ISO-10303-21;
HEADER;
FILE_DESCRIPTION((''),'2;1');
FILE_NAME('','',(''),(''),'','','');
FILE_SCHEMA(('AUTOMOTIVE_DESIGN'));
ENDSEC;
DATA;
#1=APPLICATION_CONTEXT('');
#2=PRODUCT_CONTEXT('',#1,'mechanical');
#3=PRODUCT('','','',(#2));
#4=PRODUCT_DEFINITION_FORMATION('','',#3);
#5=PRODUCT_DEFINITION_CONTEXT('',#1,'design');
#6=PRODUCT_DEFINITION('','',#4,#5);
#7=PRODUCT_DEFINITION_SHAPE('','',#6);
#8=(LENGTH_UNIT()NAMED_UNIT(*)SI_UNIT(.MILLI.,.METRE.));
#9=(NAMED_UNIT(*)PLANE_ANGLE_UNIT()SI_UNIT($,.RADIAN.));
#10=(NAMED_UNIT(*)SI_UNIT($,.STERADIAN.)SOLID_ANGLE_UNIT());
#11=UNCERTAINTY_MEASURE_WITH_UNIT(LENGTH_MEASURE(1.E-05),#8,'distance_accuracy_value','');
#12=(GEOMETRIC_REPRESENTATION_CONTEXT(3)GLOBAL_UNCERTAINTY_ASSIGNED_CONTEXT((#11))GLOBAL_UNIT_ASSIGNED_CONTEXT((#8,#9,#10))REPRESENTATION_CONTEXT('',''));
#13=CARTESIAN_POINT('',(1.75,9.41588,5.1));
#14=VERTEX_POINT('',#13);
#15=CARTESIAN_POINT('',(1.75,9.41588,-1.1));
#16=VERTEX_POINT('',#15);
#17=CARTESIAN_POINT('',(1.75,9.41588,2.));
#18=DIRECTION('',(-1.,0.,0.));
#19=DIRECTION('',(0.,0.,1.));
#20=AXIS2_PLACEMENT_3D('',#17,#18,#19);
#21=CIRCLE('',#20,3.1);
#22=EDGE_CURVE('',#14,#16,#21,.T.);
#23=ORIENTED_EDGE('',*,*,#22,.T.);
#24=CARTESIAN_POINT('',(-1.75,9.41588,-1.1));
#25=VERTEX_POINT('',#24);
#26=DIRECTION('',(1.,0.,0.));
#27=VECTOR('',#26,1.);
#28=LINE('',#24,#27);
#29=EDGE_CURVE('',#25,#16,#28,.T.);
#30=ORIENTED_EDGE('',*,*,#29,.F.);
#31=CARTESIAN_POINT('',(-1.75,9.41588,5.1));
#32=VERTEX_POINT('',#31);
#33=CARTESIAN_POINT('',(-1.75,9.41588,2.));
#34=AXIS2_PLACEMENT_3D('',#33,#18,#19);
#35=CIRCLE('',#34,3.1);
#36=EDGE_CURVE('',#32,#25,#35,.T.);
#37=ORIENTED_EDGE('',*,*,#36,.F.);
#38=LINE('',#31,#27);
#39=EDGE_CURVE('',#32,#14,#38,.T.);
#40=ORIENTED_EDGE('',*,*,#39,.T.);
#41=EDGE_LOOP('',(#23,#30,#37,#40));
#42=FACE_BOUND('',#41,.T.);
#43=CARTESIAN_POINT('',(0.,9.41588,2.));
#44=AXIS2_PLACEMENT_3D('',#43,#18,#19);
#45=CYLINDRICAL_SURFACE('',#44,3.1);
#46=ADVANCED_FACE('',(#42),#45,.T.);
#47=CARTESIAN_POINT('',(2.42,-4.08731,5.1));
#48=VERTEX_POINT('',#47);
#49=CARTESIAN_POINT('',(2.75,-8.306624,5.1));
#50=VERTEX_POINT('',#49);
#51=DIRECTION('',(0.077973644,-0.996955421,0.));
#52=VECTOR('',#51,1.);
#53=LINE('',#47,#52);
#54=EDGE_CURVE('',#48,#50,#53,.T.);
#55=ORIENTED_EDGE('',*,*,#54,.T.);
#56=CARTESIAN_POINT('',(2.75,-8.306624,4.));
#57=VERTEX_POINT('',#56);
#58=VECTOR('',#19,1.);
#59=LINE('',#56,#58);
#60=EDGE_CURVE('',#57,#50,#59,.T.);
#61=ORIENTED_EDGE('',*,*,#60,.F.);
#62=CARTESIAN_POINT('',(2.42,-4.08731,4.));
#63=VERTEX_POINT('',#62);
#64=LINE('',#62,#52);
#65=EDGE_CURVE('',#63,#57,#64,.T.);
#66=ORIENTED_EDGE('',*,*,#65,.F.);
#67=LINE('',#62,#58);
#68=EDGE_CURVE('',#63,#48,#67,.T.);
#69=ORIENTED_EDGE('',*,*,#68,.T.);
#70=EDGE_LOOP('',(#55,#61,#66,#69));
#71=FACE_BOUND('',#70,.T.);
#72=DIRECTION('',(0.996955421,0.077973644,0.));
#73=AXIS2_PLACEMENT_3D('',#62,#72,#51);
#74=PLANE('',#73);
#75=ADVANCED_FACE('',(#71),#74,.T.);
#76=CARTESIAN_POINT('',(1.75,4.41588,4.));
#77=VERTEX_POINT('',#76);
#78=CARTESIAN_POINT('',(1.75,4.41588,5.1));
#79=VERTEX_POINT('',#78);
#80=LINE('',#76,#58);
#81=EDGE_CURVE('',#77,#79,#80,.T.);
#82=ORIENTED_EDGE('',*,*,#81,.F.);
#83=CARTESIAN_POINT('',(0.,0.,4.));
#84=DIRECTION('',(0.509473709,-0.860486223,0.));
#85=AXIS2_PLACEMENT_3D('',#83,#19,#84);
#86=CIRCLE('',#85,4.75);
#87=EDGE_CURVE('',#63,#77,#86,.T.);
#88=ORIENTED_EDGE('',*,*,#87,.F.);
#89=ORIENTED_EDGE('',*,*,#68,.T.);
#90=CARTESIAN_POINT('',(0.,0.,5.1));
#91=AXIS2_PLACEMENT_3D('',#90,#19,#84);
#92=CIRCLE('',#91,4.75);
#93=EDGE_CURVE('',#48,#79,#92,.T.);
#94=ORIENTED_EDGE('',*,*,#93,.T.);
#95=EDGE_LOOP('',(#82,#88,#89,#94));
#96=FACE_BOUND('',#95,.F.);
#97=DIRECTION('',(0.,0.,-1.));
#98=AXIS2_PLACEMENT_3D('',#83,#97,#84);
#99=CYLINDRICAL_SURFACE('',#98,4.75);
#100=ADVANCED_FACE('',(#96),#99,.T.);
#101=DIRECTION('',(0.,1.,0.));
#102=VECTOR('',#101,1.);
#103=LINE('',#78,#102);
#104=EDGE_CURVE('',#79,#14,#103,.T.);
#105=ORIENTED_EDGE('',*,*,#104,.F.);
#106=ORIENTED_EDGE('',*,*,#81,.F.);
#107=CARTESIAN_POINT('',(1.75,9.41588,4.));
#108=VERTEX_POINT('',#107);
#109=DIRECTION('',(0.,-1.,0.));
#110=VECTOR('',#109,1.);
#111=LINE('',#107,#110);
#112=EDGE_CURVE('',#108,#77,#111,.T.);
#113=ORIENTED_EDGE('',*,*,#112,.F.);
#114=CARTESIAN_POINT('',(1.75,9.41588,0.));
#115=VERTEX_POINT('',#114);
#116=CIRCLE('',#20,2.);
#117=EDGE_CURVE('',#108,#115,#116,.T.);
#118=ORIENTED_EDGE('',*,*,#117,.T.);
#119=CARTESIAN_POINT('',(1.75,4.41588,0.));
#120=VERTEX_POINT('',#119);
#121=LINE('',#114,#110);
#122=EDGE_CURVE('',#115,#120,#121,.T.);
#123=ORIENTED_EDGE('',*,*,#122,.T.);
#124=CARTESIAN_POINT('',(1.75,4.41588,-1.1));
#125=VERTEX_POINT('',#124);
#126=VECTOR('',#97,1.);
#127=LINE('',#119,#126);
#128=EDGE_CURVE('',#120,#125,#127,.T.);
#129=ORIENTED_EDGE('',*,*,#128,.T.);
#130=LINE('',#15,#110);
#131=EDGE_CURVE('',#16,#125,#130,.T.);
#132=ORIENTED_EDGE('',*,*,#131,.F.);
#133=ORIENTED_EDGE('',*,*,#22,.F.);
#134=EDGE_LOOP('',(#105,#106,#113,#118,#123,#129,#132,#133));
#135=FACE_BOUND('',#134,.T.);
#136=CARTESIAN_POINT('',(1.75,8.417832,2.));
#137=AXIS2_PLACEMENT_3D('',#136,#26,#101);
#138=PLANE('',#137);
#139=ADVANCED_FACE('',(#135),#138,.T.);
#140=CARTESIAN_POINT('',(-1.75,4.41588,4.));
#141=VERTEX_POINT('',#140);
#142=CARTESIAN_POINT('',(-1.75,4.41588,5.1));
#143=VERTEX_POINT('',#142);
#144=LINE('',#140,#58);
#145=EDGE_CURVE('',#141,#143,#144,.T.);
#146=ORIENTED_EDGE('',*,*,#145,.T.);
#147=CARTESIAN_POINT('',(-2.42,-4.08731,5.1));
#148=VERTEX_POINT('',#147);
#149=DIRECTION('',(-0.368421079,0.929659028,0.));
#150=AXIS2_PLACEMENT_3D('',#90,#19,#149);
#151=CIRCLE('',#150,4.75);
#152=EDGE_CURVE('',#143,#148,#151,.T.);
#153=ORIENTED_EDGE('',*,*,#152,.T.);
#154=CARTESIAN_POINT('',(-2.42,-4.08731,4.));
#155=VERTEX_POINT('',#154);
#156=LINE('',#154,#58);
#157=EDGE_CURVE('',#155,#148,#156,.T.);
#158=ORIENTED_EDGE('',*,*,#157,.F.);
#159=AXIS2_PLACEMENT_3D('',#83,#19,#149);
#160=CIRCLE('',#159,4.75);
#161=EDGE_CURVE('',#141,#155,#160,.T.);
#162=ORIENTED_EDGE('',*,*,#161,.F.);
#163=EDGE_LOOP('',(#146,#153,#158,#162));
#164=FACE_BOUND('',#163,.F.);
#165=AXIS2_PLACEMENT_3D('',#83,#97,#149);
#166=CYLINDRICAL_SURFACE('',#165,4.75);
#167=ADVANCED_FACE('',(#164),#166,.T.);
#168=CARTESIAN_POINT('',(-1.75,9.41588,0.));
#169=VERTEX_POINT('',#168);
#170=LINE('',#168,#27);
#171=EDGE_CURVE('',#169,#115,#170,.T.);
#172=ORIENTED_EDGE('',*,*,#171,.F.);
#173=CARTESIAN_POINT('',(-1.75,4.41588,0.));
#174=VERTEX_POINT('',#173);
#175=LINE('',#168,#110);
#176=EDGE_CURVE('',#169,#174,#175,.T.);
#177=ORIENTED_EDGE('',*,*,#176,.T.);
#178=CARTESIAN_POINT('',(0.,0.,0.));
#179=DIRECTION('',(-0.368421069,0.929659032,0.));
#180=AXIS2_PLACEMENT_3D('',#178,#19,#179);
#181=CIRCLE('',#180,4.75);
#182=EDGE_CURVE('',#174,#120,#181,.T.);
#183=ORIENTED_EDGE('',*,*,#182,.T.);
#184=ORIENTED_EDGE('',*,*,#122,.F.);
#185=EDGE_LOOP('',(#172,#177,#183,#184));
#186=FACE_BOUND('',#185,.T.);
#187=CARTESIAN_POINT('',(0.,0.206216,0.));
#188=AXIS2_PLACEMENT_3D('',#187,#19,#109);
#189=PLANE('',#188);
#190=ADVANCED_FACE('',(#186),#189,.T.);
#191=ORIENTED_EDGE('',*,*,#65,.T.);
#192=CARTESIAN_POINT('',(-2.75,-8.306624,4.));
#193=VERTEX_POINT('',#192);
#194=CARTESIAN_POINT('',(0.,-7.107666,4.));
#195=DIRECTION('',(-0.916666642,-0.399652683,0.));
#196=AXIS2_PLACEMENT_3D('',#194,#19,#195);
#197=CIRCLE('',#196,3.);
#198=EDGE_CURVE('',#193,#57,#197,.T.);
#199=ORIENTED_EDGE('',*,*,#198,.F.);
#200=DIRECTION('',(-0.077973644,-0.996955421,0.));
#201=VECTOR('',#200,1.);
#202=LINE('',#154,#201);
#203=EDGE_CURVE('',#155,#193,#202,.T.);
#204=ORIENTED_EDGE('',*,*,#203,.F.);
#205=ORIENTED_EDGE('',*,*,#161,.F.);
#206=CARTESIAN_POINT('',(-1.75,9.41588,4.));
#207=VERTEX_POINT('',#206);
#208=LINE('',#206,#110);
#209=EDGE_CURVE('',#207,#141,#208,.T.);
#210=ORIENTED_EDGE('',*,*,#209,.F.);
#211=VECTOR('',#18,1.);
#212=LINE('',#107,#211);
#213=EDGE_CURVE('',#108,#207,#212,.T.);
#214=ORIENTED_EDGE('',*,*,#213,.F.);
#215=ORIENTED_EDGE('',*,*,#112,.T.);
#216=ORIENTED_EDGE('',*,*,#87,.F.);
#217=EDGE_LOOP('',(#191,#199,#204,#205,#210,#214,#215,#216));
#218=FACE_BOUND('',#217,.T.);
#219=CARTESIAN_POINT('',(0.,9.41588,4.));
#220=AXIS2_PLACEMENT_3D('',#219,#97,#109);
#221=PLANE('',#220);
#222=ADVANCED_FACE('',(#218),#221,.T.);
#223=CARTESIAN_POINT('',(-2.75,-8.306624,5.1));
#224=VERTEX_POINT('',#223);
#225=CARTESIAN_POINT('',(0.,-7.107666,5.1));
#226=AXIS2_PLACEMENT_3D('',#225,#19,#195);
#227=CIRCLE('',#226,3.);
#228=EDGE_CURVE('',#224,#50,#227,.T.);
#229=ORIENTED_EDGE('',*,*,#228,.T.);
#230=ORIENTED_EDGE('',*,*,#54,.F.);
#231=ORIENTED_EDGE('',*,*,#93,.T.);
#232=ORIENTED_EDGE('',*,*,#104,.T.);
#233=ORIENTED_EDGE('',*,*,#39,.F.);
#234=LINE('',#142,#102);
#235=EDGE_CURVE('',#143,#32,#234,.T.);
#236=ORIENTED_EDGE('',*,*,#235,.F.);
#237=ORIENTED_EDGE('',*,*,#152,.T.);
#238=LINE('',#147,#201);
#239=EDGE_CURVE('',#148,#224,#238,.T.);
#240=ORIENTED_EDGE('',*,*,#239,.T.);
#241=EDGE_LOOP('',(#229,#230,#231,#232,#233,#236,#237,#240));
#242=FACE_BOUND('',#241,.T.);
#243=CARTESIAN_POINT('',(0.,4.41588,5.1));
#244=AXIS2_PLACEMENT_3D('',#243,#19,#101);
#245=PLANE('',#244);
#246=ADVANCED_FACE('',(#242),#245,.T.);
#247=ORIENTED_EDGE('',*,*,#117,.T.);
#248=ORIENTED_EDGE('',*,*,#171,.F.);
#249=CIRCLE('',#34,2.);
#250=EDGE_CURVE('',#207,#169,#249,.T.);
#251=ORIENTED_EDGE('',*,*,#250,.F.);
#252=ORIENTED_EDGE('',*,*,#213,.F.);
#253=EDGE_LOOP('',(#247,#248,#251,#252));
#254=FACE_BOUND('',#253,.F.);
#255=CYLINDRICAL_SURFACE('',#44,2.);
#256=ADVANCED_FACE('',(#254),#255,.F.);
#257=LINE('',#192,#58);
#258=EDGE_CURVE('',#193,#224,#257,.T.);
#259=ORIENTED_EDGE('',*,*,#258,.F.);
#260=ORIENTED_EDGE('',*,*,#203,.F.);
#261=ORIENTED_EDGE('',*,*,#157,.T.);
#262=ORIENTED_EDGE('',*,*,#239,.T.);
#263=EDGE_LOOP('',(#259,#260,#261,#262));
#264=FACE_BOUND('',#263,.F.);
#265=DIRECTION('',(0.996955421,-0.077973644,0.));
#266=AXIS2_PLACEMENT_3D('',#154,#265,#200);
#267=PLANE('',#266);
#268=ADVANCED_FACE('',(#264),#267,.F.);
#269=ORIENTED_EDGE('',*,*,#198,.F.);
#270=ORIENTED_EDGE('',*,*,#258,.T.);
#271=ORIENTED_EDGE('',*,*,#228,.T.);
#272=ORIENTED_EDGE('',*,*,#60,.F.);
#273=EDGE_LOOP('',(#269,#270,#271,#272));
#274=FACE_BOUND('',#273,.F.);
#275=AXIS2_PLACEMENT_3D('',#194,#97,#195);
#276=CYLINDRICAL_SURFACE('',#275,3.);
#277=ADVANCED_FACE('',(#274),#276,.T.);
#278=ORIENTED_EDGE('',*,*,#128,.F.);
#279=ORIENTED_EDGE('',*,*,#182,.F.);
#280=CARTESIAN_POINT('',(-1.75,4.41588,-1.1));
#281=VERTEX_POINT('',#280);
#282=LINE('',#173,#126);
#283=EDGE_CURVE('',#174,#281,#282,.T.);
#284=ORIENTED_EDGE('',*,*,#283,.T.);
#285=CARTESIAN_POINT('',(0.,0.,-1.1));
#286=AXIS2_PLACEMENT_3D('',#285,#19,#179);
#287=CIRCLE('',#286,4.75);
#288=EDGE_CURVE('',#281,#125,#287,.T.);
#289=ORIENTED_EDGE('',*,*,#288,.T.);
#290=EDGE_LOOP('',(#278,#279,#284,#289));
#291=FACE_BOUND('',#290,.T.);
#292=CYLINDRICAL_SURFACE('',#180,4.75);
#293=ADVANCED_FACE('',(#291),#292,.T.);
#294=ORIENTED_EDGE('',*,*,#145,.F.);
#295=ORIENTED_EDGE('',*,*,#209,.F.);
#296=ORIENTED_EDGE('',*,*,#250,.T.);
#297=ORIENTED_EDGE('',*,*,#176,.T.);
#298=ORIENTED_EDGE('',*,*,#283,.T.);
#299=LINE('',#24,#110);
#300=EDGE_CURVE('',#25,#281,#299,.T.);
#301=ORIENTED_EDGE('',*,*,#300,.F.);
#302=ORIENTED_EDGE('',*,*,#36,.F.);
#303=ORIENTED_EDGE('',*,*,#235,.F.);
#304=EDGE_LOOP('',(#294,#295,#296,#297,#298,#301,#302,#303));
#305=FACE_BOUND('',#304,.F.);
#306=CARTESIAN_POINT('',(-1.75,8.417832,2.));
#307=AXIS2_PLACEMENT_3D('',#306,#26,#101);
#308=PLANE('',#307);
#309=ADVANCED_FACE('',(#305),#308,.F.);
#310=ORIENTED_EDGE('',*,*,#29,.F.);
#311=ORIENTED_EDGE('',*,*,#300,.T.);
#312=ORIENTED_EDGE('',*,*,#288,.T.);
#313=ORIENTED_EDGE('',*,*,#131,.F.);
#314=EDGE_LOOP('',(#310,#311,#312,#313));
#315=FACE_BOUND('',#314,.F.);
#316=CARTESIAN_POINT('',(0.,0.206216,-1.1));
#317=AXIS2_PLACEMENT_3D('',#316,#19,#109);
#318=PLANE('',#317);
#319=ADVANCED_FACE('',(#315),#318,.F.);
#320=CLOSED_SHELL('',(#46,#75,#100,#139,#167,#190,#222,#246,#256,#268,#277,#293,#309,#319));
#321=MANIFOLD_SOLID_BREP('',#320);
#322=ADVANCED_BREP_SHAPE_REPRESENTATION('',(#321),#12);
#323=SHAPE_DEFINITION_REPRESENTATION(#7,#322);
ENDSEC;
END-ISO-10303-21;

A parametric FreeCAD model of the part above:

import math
import FreeCAD as App
import Part
import Sketcher

V = App.Vector
Q = App.Units.Quantity

doc = App.newDocument("Part")
body = doc.addObject("PartDesign::Body", "Body")

# Sketch on XY plane
sketch1 = doc.addObject("Sketcher::SketchObject", "Sketch")
body.addObject(sketch1)
sketch1.AttachmentSupport = (doc.XY_Plane, [""])
sketch1.MapMode = "FlatFace"
sketch1.addGeometry([
    Part.ArcOfCircle(Part.Circle(V(0, 0, 0), V(0, 0, 1), 4.8), math.radians(-158), math.radians(-31)),  # 0
    Part.LineSegment(V(4.1, -2.4, 0), V(8.3, -2.8, 0)),  # 1
    Part.ArcOfCircle(Part.Circle(V(7.1, 0, 0), V(0, 0, 1), 3), math.radians(-66), math.radians(66)),  # 2
    Part.LineSegment(V(8.3, 2.8, 0), V(4.1, 2.4, 0)),  # 3
    Part.ArcOfCircle(Part.Circle(V(0, 0, 0), V(0, 0, 1), 4.8), math.radians(31), math.radians(158)),  # 4
    Part.LineSegment(V(-4.4, 1.8, 0), V(-4.4, -1.8, 0)),  # 5
], False)
sketch1.addConstraint([
    Sketcher.Constraint("Coincident", 0, 2, 1, 1),
    Sketcher.Constraint("Coincident", 1, 2, 2, 1),
    Sketcher.Constraint("Coincident", 2, 2, 3, 1),
    Sketcher.Constraint("Coincident", 3, 2, 4, 1),
    Sketcher.Constraint("Coincident", 4, 2, 5, 1),
    Sketcher.Constraint("Coincident", 5, 2, 0, 1),
    Sketcher.Constraint("Vertical", 5),
    Sketcher.Constraint("Coincident", 0, 3, -1, 1),
    Sketcher.Constraint("Coincident", 4, 3, -1, 1),
    Sketcher.Constraint("Equal", 0, 4),
    Sketcher.Constraint("Symmetric", 1, 2, 2, 2, -1),
    Sketcher.Constraint("Vertical", 0, 2, 3, 2),
    Sketcher.Constraint("Radius", 2, Q("3 mm")),
    Sketcher.Constraint("Radius", 0, Q("4.75 mm")),
    Sketcher.Constraint("DistanceY", 5, 2, 5, 1, Q("3.5 mm")),
    Sketcher.Constraint("DistanceY", 1, 2, 2, 2, Q("5.5 mm")),
    Sketcher.Constraint("DistanceY", 0, 2, -1, 1, Q("2.42 mm")),
    Sketcher.Constraint("Distance", 1, Q("4.232199 mm")),
])
pad1 = doc.addObject("PartDesign::Pad", "Pad")
body.addObject(pad1)
pad1.Profile = sketch1
pad1.Length = 1.1

# Sketch on XZ plane
sketch2 = doc.addObject("Sketcher::SketchObject", "Sketch001")
body.addObject(sketch2)
sketch2.AttachmentSupport = (doc.XZ_Plane, [""])
sketch2.MapMode = "FlatFace"
sketch2.addGeometry([
    Part.ArcOfCircle(Part.Circle(V(-9.4, -2, 0), V(0, 0, 1), 2), math.radians(90), math.radians(270)),  # 0
    Part.LineSegment(V(-9.4, 0, 0), V(-4.4, 0, 0)),  # 1
    Part.LineSegment(V(-4.4, 0, 0), V(-4.4, 1.1, 0)),  # 2
    Part.LineSegment(V(-4.4, 1.1, 0), V(-9.4, 1.1, 0)),  # 3
    Part.ArcOfCircle(Part.Circle(V(-9.4, -2, 0), V(0, 0, 1), 3.1), math.radians(90), math.radians(270)),  # 4
    Part.LineSegment(V(-9.4, -5.1, 0), V(-4.4, -5.1, 0)),  # 5
    Part.LineSegment(V(-4.4, -5.1, 0), V(-4.4, -4, 0)),  # 6
    Part.LineSegment(V(-4.4, -4, 0), V(-9.4, -4, 0)),  # 7
], False)
sketch2.addConstraint([
    Sketcher.Constraint("Tangent", 0, 1, 1, 1),
    Sketcher.Constraint("Coincident", 1, 2, 2, 1),
    Sketcher.Constraint("Coincident", 2, 2, 3, 1),
    Sketcher.Constraint("Tangent", 3, 2, 4, 1),
    Sketcher.Constraint("Tangent", 4, 2, 5, 1),
    Sketcher.Constraint("Coincident", 5, 2, 6, 1),
    Sketcher.Constraint("Coincident", 6, 2, 7, 1),
    Sketcher.Constraint("Tangent", 7, 2, 0, 2),
    Sketcher.Constraint("Horizontal", 1),
    Sketcher.Constraint("Vertical", 2),
    Sketcher.Constraint("Horizontal", 3),
    Sketcher.Constraint("Horizontal", 5),
    Sketcher.Constraint("Vertical", 6),
    Sketcher.Constraint("Horizontal", 7),
    Sketcher.Constraint("Coincident", 4, 3, 0, 3),
    Sketcher.Constraint("PointOnObject", 0, 1, -1),
    Sketcher.Constraint("Vertical", 2, 2, 5, 2),
    Sketcher.Constraint("Radius", 0, Q("2 mm")),
    Sketcher.Constraint("Radius", 4, Q("3.1 mm")),
    Sketcher.Constraint("DistanceX", 1, 1, 1, 2, Q("5 mm")),
    Sketcher.Constraint("DistanceX", 0, 3, -1, 1, Q("9.41588 mm")),
])
pad2 = doc.addObject("PartDesign::Pad", "Pad001")
body.addObject(pad2)
pad2.Profile = sketch2
pad2.Type = "TwoLengths"
pad2.Length = 1.75
pad2.Length2 = 1.75

# Sketch on XY plane
sketch3 = doc.addObject("Sketcher::SketchObject", "Sketch002")
body.addObject(sketch3)
sketch3.AttachmentSupport = (doc.XY_Plane, [""])
sketch3.MapMode = "FlatFace"
sketch3.AttachmentOffset = App.Placement(V(0, 0, -4), App.Rotation())
sketch3.addGeometry([
    Part.ArcOfCircle(Part.Circle(V(0, 0, 0), V(0, 0, 1), 4.7), math.radians(-158), math.radians(158)),
    Part.LineSegment(V(-4.4, 1.8, 0), V(-4.4, -1.8, 0)),
], False)
sketch3.addConstraint([
    Sketcher.Constraint("Coincident", 0, 1, 1, 2),
    Sketcher.Constraint("Coincident", 1, 1, 0, 2),
    Sketcher.Constraint("Vertical", 1),
    Sketcher.Constraint("Coincident", 0, 3, -1, 1),
    Sketcher.Constraint("Radius", 0, Q("4.75 mm")),
    Sketcher.Constraint("DistanceY", 1, 2, 1, 1, Q("3.5 mm")),
])
pad3 = doc.addObject("PartDesign::Pad", "Pad002")
body.addObject(pad3)
pad3.Profile = sketch3
pad3.Length = 1.1
pad3.Reversed = True
body2 = doc.addObject("PartDesign::Body", "Body001")
doc.recompute()

body.Placement = App.Placement(V(0, 0, 4), App.Rotation(V(0, 0, -1), 90))
boolean = doc.addObject("PartDesign::Boolean", "Boolean")
body2.addObject(boolean)
boolean.Type = "Fuse"
boolean.addObjects([body])

doc.recompute()
